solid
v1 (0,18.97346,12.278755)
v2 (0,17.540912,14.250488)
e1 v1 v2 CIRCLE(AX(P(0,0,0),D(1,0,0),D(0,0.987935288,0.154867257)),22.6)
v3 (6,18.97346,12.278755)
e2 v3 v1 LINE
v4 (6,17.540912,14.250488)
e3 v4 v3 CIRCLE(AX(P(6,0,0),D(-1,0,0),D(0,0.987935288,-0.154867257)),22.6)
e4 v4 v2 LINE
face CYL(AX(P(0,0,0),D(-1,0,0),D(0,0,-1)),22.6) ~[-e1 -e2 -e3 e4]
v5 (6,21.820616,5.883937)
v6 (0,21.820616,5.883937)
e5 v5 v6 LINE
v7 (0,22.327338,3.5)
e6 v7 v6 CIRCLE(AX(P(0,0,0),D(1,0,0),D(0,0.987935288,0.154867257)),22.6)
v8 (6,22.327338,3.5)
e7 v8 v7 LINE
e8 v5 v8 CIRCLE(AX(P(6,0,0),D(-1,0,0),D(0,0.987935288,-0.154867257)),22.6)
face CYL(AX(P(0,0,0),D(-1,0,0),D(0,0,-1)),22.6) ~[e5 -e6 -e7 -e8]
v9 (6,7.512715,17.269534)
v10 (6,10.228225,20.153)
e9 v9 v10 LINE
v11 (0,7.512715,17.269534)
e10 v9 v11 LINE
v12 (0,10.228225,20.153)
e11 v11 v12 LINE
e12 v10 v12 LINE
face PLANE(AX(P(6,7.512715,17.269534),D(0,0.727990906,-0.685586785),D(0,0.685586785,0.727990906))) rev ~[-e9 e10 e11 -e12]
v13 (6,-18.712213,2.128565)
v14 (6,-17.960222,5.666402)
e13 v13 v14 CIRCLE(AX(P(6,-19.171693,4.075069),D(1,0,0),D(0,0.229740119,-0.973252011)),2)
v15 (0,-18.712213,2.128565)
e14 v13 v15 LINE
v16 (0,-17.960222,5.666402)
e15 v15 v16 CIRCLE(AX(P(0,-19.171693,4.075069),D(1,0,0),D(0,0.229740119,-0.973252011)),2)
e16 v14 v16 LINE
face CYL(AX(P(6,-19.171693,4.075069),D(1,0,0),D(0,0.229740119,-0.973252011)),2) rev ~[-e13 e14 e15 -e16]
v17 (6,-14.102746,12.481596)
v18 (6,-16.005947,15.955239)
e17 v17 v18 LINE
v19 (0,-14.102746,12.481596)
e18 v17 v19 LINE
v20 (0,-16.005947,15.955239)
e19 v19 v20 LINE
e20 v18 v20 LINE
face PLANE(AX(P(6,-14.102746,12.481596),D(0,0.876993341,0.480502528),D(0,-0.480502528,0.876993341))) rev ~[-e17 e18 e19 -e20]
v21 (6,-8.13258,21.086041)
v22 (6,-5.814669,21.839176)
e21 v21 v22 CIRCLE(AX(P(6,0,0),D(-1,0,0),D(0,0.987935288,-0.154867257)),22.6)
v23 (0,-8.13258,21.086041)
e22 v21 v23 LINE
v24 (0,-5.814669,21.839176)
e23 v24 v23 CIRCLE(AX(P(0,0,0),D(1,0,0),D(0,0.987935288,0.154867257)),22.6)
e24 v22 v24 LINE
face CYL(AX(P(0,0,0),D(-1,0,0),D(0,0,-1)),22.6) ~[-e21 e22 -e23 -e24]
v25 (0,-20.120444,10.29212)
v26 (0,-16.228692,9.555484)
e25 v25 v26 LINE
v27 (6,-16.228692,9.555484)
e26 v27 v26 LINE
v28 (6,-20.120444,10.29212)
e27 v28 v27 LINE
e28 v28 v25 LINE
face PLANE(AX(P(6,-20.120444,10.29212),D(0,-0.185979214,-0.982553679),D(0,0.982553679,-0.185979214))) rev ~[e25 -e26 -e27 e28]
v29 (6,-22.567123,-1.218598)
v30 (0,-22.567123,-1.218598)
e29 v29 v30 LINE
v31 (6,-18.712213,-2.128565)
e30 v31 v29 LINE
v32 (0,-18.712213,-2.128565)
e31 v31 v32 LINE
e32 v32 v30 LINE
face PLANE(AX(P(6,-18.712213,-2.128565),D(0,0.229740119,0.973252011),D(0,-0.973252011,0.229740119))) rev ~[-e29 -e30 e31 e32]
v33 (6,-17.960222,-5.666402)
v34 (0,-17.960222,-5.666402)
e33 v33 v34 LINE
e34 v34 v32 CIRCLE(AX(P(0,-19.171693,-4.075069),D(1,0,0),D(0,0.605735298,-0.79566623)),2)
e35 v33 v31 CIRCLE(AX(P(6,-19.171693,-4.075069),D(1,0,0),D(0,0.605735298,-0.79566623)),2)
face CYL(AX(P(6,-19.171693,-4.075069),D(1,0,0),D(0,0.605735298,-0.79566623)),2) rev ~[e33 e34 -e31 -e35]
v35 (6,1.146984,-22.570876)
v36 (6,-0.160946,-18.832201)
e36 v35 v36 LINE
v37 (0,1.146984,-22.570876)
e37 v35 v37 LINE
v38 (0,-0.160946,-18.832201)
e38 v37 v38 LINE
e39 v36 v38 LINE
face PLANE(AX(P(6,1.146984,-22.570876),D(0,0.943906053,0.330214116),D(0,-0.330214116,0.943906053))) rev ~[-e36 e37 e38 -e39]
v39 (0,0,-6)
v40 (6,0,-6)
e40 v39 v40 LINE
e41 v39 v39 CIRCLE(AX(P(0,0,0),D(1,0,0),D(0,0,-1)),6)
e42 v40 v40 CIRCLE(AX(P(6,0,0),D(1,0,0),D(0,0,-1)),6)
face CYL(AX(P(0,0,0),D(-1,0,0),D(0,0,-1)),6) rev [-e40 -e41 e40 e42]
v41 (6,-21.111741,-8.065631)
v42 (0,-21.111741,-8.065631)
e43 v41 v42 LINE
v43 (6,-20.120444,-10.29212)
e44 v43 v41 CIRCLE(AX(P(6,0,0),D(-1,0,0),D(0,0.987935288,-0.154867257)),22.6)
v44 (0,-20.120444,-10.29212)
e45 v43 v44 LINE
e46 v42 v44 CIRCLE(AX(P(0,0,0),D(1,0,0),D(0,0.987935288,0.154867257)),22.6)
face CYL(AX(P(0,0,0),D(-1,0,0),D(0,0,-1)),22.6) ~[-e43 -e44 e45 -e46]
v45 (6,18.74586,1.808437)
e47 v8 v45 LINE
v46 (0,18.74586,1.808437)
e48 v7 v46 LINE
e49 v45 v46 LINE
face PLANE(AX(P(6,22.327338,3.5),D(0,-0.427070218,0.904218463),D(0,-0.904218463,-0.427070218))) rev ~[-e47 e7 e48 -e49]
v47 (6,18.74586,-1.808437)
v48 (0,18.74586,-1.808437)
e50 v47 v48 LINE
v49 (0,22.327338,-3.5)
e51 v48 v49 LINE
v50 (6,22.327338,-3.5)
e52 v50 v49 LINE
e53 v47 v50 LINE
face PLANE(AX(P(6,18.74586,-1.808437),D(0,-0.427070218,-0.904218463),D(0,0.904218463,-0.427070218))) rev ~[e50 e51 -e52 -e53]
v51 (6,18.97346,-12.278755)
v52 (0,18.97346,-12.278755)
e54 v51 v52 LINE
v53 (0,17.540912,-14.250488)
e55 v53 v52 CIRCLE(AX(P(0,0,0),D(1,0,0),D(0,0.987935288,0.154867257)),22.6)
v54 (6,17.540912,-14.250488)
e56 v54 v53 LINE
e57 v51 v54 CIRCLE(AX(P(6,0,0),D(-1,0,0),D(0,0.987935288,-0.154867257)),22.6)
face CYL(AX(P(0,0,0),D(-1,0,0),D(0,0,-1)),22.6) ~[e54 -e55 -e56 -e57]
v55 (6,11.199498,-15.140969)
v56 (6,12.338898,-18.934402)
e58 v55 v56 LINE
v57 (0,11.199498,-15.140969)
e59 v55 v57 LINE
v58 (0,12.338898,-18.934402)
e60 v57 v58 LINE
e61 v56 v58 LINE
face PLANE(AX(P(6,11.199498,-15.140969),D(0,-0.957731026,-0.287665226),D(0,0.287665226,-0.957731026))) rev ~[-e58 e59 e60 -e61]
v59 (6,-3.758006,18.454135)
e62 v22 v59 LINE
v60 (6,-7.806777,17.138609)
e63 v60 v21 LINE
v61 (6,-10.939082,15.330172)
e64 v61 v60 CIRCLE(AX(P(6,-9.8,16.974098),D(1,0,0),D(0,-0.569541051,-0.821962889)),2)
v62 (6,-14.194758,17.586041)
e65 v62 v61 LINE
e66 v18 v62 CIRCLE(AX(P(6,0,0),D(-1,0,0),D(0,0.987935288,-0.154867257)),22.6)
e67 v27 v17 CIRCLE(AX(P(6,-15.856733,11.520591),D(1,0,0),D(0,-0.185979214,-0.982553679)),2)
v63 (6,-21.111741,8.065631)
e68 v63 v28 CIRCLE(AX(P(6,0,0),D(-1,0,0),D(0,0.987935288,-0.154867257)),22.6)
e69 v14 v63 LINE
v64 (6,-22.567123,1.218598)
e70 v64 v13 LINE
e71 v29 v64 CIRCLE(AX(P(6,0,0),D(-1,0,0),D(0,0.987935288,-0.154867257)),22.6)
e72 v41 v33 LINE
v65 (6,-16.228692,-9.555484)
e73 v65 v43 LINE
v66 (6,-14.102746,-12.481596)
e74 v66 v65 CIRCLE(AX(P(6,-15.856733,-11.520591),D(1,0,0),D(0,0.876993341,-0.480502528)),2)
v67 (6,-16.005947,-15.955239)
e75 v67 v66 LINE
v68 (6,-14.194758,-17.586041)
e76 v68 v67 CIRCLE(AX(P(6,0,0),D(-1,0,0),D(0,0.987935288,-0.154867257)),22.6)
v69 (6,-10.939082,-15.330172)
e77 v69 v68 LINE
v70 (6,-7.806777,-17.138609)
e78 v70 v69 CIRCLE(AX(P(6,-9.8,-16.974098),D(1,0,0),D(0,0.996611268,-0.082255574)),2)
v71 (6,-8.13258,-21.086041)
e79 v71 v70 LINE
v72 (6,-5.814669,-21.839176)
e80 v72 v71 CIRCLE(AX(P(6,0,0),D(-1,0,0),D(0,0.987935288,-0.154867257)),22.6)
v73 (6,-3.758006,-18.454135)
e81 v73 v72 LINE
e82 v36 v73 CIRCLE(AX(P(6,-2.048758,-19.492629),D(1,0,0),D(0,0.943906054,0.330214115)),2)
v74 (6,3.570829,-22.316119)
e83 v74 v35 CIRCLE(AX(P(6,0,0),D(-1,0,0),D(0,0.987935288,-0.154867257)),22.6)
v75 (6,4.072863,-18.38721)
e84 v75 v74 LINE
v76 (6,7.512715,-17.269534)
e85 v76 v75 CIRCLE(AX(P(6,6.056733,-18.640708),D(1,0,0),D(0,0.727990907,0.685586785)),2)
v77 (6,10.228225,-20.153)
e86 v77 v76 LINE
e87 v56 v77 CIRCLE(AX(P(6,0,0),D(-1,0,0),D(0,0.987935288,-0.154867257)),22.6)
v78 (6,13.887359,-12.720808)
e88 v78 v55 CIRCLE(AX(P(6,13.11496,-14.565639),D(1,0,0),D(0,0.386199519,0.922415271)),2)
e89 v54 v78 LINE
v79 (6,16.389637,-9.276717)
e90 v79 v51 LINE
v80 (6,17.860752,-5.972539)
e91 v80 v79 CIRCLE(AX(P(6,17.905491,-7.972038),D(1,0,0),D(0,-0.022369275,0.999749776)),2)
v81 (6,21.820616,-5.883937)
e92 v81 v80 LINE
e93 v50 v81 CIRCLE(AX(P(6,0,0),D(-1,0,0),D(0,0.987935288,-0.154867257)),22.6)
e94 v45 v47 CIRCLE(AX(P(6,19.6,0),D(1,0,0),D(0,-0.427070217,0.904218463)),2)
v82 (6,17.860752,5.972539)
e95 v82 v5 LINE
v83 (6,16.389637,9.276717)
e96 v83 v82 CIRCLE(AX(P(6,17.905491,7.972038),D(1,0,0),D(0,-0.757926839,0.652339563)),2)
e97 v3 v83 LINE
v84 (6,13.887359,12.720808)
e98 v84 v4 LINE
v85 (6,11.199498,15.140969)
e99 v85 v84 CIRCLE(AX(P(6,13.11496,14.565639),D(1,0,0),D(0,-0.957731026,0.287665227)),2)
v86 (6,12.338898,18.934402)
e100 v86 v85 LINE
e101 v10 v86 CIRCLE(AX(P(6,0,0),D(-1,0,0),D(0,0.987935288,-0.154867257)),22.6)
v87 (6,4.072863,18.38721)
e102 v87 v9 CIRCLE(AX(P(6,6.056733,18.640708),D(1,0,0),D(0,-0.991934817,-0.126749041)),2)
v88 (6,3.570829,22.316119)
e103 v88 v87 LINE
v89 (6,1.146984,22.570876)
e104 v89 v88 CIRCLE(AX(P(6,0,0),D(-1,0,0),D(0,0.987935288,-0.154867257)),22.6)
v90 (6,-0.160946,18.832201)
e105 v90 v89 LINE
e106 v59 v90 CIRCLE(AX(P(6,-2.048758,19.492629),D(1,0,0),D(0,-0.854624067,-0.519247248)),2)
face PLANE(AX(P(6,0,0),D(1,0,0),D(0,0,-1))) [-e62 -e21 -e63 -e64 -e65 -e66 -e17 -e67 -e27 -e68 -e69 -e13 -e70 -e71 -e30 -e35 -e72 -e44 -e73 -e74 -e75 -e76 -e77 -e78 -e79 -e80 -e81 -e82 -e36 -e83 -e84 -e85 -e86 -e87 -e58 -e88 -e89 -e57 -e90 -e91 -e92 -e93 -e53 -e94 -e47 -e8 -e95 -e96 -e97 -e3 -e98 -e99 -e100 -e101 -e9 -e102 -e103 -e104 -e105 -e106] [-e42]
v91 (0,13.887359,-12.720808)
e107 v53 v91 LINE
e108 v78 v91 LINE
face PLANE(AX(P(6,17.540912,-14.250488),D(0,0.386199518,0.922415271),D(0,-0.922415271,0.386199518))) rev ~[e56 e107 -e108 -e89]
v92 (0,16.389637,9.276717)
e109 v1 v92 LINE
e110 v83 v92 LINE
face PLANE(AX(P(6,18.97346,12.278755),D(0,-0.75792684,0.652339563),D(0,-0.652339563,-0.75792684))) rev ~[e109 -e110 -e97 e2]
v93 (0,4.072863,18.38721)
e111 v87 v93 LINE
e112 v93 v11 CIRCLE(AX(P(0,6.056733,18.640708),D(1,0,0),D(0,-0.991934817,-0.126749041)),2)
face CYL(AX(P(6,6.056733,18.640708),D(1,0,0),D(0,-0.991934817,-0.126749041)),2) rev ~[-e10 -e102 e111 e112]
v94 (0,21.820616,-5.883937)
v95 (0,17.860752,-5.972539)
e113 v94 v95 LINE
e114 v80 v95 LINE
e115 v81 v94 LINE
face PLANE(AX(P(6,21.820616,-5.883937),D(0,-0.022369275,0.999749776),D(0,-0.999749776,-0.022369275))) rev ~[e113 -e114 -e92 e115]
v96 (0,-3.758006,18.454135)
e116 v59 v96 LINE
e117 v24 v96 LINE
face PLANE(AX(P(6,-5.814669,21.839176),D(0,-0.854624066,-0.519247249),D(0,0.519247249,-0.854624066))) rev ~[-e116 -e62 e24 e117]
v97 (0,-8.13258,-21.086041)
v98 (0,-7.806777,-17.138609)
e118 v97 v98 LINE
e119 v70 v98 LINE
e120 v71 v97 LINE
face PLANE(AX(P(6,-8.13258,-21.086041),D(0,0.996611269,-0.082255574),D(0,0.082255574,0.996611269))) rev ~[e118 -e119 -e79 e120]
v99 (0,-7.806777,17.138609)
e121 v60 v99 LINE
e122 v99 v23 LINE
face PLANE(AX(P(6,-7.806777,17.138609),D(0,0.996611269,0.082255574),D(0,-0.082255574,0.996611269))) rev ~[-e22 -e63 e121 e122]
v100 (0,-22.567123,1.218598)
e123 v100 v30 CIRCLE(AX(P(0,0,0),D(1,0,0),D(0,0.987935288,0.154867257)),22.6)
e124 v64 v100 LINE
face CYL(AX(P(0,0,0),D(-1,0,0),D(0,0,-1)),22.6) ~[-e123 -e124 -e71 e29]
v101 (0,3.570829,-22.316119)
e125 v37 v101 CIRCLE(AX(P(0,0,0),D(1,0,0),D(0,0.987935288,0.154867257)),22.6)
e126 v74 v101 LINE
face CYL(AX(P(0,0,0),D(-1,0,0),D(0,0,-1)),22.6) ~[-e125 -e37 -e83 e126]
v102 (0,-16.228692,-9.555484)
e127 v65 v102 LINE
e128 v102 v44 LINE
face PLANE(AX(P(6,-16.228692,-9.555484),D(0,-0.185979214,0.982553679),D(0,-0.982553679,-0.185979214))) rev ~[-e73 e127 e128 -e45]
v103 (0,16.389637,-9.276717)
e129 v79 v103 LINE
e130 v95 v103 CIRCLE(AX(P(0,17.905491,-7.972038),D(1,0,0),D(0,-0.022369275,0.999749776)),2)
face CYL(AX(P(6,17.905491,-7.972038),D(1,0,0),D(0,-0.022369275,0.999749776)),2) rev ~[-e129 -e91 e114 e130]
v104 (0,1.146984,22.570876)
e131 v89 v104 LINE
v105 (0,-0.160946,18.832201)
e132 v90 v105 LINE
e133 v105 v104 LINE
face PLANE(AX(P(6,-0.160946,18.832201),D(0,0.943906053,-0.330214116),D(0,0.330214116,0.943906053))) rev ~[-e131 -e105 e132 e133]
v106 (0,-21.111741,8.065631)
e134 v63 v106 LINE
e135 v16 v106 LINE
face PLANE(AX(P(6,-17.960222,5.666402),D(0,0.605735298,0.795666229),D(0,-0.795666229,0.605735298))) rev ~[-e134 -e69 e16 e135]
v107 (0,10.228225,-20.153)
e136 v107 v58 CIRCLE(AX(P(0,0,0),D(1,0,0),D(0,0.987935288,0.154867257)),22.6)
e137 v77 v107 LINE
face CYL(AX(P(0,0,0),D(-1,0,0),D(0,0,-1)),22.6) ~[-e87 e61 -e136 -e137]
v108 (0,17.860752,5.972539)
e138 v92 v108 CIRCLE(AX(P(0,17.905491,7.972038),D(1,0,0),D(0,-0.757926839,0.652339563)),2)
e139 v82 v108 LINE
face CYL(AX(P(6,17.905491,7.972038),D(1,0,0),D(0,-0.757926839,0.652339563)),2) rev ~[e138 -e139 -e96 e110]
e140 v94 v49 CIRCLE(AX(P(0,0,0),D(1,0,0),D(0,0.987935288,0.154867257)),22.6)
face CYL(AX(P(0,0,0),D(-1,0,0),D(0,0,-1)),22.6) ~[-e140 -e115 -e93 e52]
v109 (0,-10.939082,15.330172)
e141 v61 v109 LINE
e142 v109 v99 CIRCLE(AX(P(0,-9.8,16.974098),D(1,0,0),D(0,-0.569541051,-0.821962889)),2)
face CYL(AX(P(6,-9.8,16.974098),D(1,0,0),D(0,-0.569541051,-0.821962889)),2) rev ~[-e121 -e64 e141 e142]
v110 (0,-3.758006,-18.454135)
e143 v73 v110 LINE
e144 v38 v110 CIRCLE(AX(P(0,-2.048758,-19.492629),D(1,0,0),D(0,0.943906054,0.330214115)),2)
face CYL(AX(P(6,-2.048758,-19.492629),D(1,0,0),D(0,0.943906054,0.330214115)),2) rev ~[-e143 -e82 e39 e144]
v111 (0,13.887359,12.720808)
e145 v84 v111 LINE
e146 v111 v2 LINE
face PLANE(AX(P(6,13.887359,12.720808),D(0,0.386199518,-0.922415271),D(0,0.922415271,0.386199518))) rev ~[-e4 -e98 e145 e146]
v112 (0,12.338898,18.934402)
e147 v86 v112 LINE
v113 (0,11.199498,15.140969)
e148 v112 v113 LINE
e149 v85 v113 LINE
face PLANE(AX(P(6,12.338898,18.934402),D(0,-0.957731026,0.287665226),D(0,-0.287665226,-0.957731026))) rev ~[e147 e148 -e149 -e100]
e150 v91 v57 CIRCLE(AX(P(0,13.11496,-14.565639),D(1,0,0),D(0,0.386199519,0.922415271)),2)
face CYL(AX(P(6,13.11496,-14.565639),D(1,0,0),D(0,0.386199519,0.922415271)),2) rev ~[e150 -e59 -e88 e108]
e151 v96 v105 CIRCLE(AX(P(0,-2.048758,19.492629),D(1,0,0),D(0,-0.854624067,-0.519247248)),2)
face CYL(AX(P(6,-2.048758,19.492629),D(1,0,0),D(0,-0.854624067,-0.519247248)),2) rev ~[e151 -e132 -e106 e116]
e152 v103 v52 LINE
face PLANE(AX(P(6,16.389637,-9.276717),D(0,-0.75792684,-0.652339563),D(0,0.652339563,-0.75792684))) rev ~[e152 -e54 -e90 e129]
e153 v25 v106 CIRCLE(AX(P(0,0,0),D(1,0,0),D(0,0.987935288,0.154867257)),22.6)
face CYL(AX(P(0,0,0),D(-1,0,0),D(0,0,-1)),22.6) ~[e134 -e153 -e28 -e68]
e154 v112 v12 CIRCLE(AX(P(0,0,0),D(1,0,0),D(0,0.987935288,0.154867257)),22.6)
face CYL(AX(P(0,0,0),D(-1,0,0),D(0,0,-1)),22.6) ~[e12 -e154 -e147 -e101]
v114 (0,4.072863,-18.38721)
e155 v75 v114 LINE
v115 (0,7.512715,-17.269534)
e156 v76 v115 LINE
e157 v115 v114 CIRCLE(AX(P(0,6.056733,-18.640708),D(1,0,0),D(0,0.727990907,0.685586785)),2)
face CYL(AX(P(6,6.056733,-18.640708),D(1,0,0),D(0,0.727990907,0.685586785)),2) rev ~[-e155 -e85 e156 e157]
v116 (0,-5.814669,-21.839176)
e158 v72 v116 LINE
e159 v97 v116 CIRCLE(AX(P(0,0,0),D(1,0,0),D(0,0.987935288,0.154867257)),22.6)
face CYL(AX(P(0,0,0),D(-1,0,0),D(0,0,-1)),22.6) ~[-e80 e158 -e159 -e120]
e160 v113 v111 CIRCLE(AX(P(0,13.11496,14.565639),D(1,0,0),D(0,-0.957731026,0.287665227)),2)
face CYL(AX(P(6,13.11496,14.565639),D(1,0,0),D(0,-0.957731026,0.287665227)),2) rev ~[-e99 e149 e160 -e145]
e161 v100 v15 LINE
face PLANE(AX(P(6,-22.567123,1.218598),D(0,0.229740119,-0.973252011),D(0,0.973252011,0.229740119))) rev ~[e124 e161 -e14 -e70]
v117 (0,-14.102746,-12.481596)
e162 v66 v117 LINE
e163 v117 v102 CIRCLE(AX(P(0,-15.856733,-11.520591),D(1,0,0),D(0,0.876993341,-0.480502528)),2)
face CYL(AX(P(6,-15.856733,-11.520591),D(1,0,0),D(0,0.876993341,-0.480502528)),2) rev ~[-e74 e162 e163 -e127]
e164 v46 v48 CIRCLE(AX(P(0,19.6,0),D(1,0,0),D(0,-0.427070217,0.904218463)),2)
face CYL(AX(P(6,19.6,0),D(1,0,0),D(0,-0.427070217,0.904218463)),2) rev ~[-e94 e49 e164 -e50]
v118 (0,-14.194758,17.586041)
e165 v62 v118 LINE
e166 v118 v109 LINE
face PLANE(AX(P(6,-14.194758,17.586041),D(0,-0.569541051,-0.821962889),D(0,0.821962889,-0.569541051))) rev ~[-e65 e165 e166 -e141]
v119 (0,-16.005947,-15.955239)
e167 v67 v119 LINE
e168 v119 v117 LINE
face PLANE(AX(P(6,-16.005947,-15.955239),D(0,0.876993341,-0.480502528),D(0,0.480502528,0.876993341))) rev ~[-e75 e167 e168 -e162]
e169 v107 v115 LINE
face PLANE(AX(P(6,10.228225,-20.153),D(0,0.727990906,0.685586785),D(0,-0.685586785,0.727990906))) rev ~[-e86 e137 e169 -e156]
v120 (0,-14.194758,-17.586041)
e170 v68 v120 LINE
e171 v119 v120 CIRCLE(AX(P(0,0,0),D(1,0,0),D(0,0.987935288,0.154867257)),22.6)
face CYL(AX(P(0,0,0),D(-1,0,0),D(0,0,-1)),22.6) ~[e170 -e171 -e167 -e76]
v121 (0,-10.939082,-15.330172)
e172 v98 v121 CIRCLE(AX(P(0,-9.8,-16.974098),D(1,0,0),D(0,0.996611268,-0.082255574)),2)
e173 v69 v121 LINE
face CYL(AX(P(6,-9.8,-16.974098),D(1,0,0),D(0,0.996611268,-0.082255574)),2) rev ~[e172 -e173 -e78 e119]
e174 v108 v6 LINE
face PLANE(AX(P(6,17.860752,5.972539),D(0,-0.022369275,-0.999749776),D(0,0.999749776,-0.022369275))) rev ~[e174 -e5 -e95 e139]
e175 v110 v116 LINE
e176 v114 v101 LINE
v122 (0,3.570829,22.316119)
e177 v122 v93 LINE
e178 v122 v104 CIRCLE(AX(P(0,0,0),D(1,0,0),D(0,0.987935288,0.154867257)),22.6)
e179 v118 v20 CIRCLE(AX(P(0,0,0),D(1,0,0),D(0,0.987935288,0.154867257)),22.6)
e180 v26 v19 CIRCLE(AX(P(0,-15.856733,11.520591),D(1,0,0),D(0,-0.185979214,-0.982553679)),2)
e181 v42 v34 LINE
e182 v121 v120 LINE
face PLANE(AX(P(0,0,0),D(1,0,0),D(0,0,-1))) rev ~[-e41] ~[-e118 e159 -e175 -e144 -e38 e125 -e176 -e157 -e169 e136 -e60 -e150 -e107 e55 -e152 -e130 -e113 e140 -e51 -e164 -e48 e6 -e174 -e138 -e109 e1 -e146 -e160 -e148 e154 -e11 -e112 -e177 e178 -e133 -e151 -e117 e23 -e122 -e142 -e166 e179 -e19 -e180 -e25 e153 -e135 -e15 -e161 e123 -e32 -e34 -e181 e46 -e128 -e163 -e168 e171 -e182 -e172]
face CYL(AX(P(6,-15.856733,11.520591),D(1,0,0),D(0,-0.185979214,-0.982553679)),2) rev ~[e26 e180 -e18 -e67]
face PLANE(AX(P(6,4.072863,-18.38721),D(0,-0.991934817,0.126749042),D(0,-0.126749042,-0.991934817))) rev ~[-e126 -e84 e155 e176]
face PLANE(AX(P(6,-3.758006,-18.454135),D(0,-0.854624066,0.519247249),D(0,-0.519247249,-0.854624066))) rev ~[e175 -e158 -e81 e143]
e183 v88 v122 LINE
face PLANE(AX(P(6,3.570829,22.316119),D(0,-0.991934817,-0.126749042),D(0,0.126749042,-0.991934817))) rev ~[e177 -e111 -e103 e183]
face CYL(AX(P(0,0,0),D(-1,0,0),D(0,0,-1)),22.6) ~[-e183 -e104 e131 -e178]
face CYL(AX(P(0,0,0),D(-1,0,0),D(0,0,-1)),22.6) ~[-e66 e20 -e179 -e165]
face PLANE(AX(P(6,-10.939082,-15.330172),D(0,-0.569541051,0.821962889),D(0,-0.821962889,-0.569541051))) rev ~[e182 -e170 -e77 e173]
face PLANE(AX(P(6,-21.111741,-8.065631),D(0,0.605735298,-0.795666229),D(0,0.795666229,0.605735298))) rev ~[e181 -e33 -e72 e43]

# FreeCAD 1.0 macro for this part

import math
import FreeCAD as App
import Part
import Sketcher

V = App.Vector
Q = App.Units.Quantity

doc = App.newDocument("Part")
body = doc.addObject("PartDesign::Body", "Body")

sketch1 = body.newObject("Sketcher::SketchObject", "Sketch")
sketch1.AttachmentSupport = (doc.getObject("YZ_Plane"), [""])
sketch1.MapMode = "FlatFace"
sketch1.addGeometry([
    Part.Circle(V(0, 0, 0), V(0, 0, 1), 23),
    Part.Circle(V(0, 0, 0), V(0, 0, 1), 6),
], False)
sketch1.addConstraint([
    Sketcher.Constraint("Coincident", 0, 3, -1, 1),
    Sketcher.Constraint("Coincident", 1, 3, -1, 1),
    Sketcher.Constraint("Diameter", 1, Q("12 mm")),
    Sketcher.Constraint("Diameter", 0, Q("45.2 mm")),
])
pad1 = body.newObject("PartDesign::Pad", "Pad")
pad1.Profile = sketch1
pad1.Length = 6

sketch2 = body.newObject("Sketcher::SketchObject", "Sketch001")
sketch2.AttachmentSupport = (doc.getObject("YZ_Plane"), [""])
sketch2.MapMode = "FlatFace"
sketch2.AttachmentOffset = App.Placement(V(0, 0, 6), App.Rotation())
sketch2.addGeometry([
    Part.LineSegment(V(22.3, 3.5, 0), V(18.7, 1.8, 0)),
    Part.ArcOfCircle(Part.Circle(V(19.6, 0, 0), V(0, 0, 1), 2), math.radians(115), math.radians(245)),
    Part.LineSegment(V(18.7, -1.8, 0), V(22.3, -3.5, 0)),
    Part.LineSegment(V(22.3, -3.5, 0), V(25.8, 0, 0)),
    Part.LineSegment(V(25.8, 0, 0), V(22.3, 3.5, 0)),
], False)
sketch2.addConstraint([
    Sketcher.Constraint("Tangent", 0, 2, 1, 1),
    Sketcher.Constraint("Tangent", 1, 2, 2, 1),
    Sketcher.Constraint("Coincident", 2, 2, 3, 1),
    Sketcher.Constraint("Coincident", 3, 2, 4, 1),
    Sketcher.Constraint("Coincident", 4, 2, 0, 1),
    Sketcher.Constraint("Symmetric", 0, 2, 1, 2, -1),
    Sketcher.Constraint("PointOnObject", 3, 2, -1),
    Sketcher.Constraint("Perpendicular", 3, 4),
    Sketcher.Constraint("Vertical", 2, 2, 4, 2),
    Sketcher.Constraint("Radius", 1, Q("2 mm")),
    Sketcher.Constraint("DistanceY", 2, 2, 4, 2, Q("7 mm")),
    Sketcher.Constraint("DistanceX", -1, 1, 1, 3, Q("19.6 mm")),
    Sketcher.Constraint("DistanceX", -1, 1, 0, 2, Q("18.74586 mm")),
])
pocket1 = body.newObject("PartDesign::Pocket", "Pocket")
pocket1.Profile = sketch2
pocket1.Length = 6
doc.recompute()

polarpattern = body.newObject("PartDesign::PolarPattern", "PolarPattern")
polarpattern.Originals = [pocket1]
polarpattern.Axis = (doc.getObject("X_Axis"), [""])
polarpattern.Angle = 360
polarpattern.Occurrences = 15
body.Tip = polarpattern

doc.recompute()
